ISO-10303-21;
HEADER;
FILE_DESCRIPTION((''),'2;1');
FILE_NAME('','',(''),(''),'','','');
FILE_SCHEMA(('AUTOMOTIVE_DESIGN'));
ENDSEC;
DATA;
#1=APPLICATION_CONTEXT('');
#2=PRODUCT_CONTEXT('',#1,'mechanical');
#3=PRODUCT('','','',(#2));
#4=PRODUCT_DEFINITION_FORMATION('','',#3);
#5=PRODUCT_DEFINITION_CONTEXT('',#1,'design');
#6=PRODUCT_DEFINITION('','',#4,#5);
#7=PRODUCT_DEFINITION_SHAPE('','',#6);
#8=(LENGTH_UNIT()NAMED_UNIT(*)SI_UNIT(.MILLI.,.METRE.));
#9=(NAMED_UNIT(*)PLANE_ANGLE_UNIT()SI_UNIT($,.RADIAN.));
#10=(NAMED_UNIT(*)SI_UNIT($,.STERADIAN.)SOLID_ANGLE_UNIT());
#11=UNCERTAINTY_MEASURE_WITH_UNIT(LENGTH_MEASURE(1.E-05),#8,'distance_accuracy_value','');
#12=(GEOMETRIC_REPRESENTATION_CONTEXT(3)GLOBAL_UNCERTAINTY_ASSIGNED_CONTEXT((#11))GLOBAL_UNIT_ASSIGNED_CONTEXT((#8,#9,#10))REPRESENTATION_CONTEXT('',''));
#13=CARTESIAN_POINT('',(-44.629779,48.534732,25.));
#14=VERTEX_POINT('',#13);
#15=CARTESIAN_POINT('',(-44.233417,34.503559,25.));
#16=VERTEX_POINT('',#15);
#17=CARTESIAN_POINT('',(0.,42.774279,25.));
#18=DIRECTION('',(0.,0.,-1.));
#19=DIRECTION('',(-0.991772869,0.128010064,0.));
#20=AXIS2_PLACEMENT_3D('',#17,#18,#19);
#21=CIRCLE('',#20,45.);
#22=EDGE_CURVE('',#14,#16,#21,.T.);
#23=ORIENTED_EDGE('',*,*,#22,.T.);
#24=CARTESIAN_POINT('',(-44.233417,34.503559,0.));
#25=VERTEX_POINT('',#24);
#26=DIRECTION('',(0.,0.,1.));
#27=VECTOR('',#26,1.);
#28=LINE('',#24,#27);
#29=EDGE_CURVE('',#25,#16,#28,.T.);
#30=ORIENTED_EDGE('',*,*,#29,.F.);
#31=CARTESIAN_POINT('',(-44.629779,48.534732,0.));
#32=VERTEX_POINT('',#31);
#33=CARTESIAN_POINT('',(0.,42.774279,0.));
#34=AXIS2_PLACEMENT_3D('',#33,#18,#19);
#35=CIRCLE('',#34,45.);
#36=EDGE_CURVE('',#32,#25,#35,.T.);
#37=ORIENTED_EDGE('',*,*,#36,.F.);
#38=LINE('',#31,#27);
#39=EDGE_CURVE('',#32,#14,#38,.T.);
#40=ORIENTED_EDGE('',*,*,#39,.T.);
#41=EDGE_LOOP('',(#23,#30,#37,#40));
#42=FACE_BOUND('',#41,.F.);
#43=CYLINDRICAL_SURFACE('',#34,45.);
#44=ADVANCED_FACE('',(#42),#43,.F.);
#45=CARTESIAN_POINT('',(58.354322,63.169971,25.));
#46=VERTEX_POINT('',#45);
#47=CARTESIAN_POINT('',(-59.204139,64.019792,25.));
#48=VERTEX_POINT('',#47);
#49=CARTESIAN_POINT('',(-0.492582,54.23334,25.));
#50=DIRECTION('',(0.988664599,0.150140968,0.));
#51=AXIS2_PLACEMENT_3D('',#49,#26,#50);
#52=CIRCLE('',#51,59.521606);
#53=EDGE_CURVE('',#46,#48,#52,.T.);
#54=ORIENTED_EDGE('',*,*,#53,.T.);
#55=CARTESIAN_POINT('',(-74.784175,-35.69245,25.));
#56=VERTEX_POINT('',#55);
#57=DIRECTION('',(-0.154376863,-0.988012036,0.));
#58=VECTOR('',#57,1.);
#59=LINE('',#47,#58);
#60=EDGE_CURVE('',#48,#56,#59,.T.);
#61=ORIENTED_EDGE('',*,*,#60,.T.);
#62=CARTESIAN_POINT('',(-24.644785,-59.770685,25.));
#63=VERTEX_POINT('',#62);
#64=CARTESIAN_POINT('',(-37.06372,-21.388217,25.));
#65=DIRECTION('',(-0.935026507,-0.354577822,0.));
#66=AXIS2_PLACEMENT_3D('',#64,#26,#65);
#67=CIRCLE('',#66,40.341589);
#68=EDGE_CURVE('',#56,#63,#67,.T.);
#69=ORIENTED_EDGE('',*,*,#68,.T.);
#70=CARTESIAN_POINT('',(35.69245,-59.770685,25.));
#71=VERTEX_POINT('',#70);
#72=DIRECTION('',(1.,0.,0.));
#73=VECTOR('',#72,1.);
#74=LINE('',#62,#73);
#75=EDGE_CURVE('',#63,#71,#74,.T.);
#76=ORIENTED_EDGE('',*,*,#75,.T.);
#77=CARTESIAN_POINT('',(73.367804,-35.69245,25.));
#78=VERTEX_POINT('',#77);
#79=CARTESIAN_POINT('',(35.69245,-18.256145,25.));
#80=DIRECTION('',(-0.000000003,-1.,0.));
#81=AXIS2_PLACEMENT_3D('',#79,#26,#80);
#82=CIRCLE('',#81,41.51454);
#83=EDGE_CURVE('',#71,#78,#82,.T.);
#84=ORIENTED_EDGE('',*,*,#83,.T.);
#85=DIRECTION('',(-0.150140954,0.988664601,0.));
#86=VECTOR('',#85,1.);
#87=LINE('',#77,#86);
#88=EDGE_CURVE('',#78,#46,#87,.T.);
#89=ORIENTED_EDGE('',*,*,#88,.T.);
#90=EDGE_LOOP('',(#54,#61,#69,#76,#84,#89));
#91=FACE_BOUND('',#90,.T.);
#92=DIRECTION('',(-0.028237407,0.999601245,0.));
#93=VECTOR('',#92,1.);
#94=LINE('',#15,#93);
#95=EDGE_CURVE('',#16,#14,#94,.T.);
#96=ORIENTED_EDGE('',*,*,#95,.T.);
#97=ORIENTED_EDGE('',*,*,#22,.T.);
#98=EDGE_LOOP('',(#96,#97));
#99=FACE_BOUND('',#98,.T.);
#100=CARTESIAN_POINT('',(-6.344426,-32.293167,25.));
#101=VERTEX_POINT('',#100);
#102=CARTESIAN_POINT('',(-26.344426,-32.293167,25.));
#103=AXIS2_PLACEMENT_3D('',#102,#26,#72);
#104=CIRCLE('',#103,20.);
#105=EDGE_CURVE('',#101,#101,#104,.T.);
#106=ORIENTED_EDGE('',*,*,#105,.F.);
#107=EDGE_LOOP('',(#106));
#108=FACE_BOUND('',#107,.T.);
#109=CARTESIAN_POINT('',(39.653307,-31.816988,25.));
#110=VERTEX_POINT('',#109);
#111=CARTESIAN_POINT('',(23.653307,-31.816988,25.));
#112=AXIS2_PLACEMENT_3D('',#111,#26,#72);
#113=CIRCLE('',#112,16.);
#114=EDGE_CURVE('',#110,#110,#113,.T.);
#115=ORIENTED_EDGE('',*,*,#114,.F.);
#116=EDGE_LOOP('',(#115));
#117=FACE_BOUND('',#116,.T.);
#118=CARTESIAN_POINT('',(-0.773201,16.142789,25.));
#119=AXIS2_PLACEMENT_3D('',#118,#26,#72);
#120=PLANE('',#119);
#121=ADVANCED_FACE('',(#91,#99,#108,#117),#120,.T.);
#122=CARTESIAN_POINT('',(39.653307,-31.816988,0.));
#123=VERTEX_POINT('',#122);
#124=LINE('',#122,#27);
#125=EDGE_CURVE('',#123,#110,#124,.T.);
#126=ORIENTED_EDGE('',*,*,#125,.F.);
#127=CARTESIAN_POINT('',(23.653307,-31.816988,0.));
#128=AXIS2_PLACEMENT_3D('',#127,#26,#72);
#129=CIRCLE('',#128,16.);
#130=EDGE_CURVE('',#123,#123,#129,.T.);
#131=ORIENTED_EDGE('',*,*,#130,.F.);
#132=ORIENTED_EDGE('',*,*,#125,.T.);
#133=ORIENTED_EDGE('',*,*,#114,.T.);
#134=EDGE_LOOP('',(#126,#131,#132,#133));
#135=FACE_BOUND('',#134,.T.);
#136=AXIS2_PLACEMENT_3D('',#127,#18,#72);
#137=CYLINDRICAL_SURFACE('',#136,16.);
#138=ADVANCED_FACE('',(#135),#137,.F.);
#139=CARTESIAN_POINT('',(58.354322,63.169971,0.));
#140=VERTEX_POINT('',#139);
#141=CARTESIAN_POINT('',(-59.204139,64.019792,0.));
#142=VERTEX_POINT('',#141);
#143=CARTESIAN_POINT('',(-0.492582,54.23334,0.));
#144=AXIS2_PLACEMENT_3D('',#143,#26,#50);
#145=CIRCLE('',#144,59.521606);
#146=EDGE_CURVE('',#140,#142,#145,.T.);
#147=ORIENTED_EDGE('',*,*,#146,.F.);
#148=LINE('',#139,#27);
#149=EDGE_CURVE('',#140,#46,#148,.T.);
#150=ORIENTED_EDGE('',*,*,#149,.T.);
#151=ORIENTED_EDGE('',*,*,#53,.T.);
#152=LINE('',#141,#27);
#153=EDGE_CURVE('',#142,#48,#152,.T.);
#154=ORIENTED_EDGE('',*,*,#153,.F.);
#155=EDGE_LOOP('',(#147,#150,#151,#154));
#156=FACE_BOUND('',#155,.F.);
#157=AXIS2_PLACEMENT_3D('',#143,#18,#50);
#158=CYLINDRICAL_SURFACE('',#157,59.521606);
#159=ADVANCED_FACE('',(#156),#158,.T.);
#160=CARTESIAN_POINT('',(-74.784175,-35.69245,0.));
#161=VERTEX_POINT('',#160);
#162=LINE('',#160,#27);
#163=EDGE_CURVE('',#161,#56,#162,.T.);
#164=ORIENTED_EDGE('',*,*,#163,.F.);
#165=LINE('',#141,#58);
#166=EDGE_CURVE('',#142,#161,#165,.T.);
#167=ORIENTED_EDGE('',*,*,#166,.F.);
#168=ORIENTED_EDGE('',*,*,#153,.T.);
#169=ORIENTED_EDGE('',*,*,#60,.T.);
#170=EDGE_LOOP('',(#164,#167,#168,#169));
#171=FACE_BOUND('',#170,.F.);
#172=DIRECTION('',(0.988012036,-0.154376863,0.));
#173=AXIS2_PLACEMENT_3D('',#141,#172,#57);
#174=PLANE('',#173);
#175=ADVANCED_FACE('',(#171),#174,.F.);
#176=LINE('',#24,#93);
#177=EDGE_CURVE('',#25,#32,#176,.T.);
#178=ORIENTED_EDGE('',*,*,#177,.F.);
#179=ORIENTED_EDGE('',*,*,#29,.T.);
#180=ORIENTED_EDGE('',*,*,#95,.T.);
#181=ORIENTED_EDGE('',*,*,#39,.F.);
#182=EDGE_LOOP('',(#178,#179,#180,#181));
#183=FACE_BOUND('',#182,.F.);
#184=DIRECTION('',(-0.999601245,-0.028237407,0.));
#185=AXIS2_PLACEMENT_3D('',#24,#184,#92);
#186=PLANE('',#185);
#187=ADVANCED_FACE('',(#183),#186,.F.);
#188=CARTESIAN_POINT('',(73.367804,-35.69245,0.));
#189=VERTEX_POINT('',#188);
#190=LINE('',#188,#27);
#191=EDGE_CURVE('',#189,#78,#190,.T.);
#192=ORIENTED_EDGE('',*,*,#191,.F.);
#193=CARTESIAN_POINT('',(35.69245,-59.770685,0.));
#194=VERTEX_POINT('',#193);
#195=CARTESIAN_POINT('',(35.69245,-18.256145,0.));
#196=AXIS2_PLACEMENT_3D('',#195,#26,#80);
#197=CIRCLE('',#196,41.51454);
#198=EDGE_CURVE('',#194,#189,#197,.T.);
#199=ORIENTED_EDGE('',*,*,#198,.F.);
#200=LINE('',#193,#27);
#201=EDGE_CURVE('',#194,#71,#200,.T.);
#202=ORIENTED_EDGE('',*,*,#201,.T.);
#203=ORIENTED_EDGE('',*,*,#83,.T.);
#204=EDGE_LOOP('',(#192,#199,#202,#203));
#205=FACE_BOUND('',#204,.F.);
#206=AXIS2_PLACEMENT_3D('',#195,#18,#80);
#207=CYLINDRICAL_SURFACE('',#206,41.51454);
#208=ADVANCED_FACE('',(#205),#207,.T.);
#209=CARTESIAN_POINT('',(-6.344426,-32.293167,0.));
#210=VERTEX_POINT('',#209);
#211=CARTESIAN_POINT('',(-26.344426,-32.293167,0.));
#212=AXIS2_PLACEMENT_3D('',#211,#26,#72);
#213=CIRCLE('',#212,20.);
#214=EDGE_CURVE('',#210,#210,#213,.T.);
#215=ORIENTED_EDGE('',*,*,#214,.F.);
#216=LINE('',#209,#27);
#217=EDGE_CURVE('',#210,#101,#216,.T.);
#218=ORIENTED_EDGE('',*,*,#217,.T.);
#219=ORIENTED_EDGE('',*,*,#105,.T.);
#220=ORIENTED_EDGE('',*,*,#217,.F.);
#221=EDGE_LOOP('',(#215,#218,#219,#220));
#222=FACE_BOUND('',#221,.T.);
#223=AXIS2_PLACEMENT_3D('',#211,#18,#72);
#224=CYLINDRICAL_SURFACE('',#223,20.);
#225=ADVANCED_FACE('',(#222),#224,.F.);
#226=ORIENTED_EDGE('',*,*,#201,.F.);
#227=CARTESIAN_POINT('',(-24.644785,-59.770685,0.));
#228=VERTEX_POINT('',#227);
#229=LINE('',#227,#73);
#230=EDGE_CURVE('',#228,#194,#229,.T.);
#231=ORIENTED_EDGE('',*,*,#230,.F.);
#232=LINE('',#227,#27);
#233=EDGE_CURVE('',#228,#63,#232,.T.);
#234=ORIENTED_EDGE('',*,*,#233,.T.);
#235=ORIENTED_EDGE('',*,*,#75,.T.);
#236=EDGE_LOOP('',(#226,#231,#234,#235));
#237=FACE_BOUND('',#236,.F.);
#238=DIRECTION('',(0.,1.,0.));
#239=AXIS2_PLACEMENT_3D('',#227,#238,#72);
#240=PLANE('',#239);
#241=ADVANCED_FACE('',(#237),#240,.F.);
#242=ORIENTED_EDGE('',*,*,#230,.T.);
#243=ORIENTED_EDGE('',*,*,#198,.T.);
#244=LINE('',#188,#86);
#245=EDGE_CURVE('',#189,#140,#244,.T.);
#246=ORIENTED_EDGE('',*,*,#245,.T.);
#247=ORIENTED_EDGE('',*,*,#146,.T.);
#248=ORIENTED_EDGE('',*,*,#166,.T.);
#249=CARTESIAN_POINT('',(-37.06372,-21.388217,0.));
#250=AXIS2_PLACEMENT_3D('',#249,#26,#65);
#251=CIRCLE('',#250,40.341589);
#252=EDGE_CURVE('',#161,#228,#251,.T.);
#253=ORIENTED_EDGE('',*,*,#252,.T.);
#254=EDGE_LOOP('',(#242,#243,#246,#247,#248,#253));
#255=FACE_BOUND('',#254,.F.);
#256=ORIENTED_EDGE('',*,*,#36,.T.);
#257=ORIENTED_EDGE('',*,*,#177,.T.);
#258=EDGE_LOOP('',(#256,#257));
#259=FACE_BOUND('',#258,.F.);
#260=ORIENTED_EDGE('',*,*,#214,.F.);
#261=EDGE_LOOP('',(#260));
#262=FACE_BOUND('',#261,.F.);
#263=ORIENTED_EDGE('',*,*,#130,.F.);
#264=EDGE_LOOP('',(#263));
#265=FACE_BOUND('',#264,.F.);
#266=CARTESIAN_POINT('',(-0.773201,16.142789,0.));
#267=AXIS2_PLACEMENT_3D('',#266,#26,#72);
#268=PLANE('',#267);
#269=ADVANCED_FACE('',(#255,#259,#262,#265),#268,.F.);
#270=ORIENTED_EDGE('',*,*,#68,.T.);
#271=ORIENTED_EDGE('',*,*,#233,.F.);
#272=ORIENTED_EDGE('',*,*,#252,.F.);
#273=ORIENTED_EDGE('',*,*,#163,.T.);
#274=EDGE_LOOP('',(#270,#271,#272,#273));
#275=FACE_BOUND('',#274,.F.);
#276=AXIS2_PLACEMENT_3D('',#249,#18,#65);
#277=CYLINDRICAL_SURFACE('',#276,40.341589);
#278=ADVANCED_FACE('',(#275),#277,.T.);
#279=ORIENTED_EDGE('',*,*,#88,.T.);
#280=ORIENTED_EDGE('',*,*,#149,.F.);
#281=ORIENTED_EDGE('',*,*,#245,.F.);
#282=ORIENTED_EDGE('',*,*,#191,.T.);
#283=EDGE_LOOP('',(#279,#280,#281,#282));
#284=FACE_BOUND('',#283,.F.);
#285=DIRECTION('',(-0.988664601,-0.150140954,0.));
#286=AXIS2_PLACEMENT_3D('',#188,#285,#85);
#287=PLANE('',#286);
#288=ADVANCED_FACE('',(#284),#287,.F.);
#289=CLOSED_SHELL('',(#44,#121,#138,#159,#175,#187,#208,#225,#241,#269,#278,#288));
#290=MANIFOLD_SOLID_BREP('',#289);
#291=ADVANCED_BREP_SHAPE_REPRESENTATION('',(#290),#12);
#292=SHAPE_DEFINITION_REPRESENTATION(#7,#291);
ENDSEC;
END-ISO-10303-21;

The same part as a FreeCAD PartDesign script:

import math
import FreeCAD as App
import Part
import Sketcher
Q = App.Units.Quantity

doc = App.newDocument("Part")
body = doc.addObject("PartDesign::Body", "Body")

sketch1 = body.newObject("Sketcher::SketchObject", "Sketch")
sketch1.AttachmentSupport = (doc.getObject("XY_Plane"), [""])
sketch1.MapMode = "FlatFace"
sketch1.addGeometry([
    Part.LineSegment(App.Vector(-25, -60, 0), App.Vector(36, -60, 0)),
    Part.ArcOfCircle(Part.Circle(App.Vector(36, -18, 0), App.Vector(0, 0, 1), 42), math.radians(-90), math.radians(-25)),
    Part.LineSegment(App.Vector(73, -36, 0), App.Vector(58, 63, 0)),
    Part.ArcOfCircle(Part.Circle(App.Vector(0, 54, 0), App.Vector(0, 0, 1), 60), math.radians(9), math.radians(171)),
    Part.LineSegment(App.Vector(-59, 64, 0), App.Vector(-75, -36, 0)),
    Part.ArcOfCircle(Part.Circle(App.Vector(-37, -21, 0), App.Vector(0, 0, 1), 40), math.radians(-159), math.radians(-72)),
    Part.Circle(App.Vector(-26, -32, 0), App.Vector(0, 0, 1), 20),
    Part.Circle(App.Vector(24, -32, 0), App.Vector(0, 0, 1), 16),
    Part.LineSegment(App.Vector(-44, 35, 0), App.Vector(-45, 49, 0)),
    Part.ArcOfCircle(Part.Circle(App.Vector(0, 43, 0), App.Vector(0, 0, 1), 45), math.radians(-169), math.radians(173)),
], False)
sketch1.addConstraint([
    Sketcher.Constraint("Tangent", 0, 2, 1, 1),
    Sketcher.Constraint("Coincident", 1, 2, 2, 1),
    Sketcher.Constraint("Tangent", 2, 2, 3, 1),
    Sketcher.Constraint("Coincident", 3, 2, 4, 1),
    Sketcher.Constraint("Coincident", 4, 2, 5, 1),
    Sketcher.Constraint("Coincident", 5, 2, 0, 1),
    Sketcher.Constraint("Coincident", 8, 1, 9, 1),
    Sketcher.Constraint("Coincident", 9, 2, 8, 2),
    Sketcher.Constraint("Horizontal", 0),
    Sketcher.Constraint("PointOnObject", 9, 3, -2),
    Sketcher.Constraint("Horizontal", 1, 2, 4, 2),
    Sketcher.Constraint("Diameter", 6, Q("40 mm")),
    Sketcher.Constraint("Diameter", 7, Q("32 mm")),
    Sketcher.Constraint("Radius", 9, Q("45 mm")),
    Sketcher.Constraint("Radius", 1, Q("41.51454 mm")),
    Sketcher.Constraint("Radius", 5, Q("40.341589 mm")),
    Sketcher.Constraint("Radius", 3, Q("59.521606 mm")),
    Sketcher.Constraint("Distance", 8, Q("14.03677 mm")),
    Sketcher.Constraint("DistanceX", 0, 1, 0, 2, Q("60.337235 mm")),
    Sketcher.Constraint("DistanceX", -1, 1, 1, 3, Q("35.69245 mm")),
    Sketcher.Constraint("DistanceY", -1, 1, 3, 3, Q("54.23334 mm")),
    Sketcher.Constraint("DistanceX", 5, 3, -1, 1, Q("37.06372 mm")),
    Sketcher.Constraint("DistanceY", -1, 1, 9, 3, Q("42.774279 mm")),
    Sketcher.Constraint("DistanceY", 1, 2, -1, 1, Q("35.69245 mm")),
    Sketcher.Constraint("DistanceY", -1, 1, 2, 2, Q("63.169971 mm")),
    Sketcher.Constraint("DistanceX", 3, 2, -1, 1, Q("59.204139 mm")),
    Sketcher.Constraint("DistanceY", -1, 1, 3, 2, Q("64.019792 mm")),
    Sketcher.Constraint("DistanceY", -1, 1, 8, 1, Q("34.503559 mm")),
    Sketcher.Constraint("DistanceY", 6, 3, 5, 3, Q("10.90495 mm")),
    Sketcher.Constraint("DistanceY", 6, 3, 7, 3, Q("0.476179 mm")),
    Sketcher.Constraint("DistanceX", 3, 3, 7, 3, Q("24.145889 mm")),
    Sketcher.Constraint("DistanceX", 6, 3, 1, 2, Q("99.71223 mm")),
])
pad1 = body.newObject("PartDesign::Pad", "Pad")
pad1.Profile = sketch1
pad1.Length = 25

doc.recompute()
